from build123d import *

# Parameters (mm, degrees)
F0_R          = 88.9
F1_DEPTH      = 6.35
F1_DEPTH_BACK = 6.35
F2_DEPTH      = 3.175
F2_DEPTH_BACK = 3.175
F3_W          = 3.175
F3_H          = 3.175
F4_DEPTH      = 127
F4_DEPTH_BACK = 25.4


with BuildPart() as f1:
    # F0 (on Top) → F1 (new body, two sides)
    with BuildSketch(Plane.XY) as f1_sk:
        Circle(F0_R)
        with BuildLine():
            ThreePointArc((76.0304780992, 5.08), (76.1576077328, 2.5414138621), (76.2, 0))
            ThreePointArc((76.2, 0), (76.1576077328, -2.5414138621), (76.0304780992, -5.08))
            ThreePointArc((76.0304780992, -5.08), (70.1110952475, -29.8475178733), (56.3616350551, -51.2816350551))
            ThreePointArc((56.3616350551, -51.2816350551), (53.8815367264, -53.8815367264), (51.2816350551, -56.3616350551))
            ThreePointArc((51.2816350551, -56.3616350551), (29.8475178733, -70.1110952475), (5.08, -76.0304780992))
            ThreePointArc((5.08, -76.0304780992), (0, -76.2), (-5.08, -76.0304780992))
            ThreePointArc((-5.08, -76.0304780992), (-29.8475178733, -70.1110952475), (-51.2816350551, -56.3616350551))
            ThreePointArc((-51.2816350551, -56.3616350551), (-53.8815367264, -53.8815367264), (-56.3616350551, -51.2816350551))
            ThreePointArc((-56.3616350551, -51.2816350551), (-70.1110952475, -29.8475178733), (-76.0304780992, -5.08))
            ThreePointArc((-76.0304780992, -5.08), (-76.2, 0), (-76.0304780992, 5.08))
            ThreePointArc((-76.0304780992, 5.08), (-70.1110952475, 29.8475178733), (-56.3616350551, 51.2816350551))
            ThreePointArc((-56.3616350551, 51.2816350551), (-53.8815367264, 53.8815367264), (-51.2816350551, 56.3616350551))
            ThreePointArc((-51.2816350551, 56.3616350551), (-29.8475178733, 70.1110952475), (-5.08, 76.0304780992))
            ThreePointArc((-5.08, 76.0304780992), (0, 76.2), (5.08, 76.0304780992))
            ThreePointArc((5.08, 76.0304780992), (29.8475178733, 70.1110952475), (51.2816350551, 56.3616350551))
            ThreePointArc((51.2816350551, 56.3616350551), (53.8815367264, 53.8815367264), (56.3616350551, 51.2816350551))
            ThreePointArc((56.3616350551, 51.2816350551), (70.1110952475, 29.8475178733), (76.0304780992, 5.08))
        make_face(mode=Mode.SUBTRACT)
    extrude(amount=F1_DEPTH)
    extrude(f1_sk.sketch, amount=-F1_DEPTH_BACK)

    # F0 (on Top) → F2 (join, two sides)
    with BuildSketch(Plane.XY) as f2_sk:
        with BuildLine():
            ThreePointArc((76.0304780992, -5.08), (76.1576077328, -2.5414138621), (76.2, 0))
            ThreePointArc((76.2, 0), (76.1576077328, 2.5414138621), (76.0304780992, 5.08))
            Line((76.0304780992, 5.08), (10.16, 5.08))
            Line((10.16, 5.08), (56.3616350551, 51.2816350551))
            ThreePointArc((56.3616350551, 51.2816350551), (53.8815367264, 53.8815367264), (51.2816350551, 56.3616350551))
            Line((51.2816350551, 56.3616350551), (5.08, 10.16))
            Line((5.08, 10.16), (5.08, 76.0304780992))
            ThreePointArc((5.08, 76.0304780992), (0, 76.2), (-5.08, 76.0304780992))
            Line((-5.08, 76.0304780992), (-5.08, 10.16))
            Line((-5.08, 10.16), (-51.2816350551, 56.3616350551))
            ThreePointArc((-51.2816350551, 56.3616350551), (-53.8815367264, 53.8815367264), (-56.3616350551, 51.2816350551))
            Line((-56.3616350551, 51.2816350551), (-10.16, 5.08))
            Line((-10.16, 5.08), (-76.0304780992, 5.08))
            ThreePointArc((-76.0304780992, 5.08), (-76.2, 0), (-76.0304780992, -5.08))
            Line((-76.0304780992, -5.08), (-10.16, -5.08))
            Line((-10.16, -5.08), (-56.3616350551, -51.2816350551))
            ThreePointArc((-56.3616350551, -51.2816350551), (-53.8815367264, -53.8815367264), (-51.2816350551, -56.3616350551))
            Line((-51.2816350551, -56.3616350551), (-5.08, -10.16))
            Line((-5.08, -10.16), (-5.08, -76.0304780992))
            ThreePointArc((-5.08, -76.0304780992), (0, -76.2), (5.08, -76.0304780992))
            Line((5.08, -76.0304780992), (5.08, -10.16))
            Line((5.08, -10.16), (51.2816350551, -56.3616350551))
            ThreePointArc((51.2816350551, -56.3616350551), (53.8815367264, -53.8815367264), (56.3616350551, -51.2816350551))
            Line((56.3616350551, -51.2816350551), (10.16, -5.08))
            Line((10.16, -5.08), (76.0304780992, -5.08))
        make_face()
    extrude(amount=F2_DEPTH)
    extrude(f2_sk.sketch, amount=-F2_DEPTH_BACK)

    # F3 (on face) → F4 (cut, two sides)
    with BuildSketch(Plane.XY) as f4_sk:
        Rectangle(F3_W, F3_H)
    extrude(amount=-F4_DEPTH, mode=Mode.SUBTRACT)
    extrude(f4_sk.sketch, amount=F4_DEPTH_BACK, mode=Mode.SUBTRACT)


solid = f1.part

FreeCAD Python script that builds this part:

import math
import FreeCAD as App
import Part
import Sketcher

V = App.Vector
Q = App.Units.Quantity


def add_polygon(sketch, points):
    """Adds a closed chain of lines whose ends are joined by coincident constraints."""
    first, n = sketch.GeometryCount, len(points)
    for a, b in zip(points, points[1:] + points[:1]):
        sketch.addGeometry(Part.LineSegment(App.Vector(*a, 0), App.Vector(*b, 0)), False)
    for i in range(n):
        sketch.addConstraint(Sketcher.Constraint("Coincident", first + i, 2, first + (i + 1) % n, 1))

doc = App.newDocument("Part")
body = doc.addObject("PartDesign::Body", "Body")

sketch1 = body.newObject("Sketcher::SketchObject", "Sketch")
sketch1.AttachmentSupport = (doc.getObject("XY_Plane"), [""])
sketch1.MapMode = "FlatFace"
sketch1.addGeometry([
    Part.Circle(V(0, 0, 0), V(0, 0, 1), 89),
    Part.ArcOfCircle(Part.Circle(V(0, 0, 0), V(0, 0, 1), 76), math.radians(4), math.radians(42)),
    Part.ArcOfCircle(Part.Circle(V(0, 0, 0), V(0, 0, 1), 76), math.radians(0), math.radians(3.82)),
    Part.ArcOfCircle(Part.Circle(V(0, 0, 0), V(0, 0, 1), 76), math.radians(-3.82), math.radians(0)),
    Part.ArcOfCircle(Part.Circle(V(0, 0, 0), V(0, 0, 1), 76), math.radians(-42), math.radians(-4)),
    Part.ArcOfCircle(Part.Circle(V(0, 0, 0), V(0, 0, 1), 76), math.radians(-47.7), math.radians(-42.3)),
    Part.ArcOfCircle(Part.Circle(V(0, 0, 0), V(0, 0, 1), 76), math.radians(-86), math.radians(-48)),
    Part.ArcOfCircle(Part.Circle(V(0, 0, 0), V(0, 0, 1), 76), math.radians(-93.82), math.radians(-86.18)),
    Part.ArcOfCircle(Part.Circle(V(0, 0, 0), V(0, 0, 1), 76), math.radians(-132), math.radians(-94)),
    Part.ArcOfCircle(Part.Circle(V(0, 0, 0), V(0, 0, 1), 76), math.radians(-137.7), math.radians(-132.3)),
    Part.ArcOfCircle(Part.Circle(V(0, 0, 0), V(0, 0, 1), 76), math.radians(-176), math.radians(-138)),
    Part.ArcOfCircle(Part.Circle(V(0, 0, 0), V(0, 0, 1), 76), math.radians(176.18), math.radians(183.82)),
    Part.ArcOfCircle(Part.Circle(V(0, 0, 0), V(0, 0, 1), 76), math.radians(138), math.radians(176)),
    Part.ArcOfCircle(Part.Circle(V(0, 0, 0), V(0, 0, 1), 76), math.radians(132.3), math.radians(137.7)),
    Part.ArcOfCircle(Part.Circle(V(0, 0, 0), V(0, 0, 1), 76), math.radians(94), math.radians(132)),
    Part.ArcOfCircle(Part.Circle(V(0, 0, 0), V(0, 0, 1), 76), math.radians(86.18), math.radians(93.82)),
    Part.ArcOfCircle(Part.Circle(V(0, 0, 0), V(0, 0, 1), 76), math.radians(48), math.radians(86)),
    Part.ArcOfCircle(Part.Circle(V(0, 0, 0), V(0, 0, 1), 76), math.radians(42.3), math.radians(47.7)),
], False)
sketch1.addConstraint([
    Sketcher.Constraint("Tangent", 1, 1, 2, 2),
    Sketcher.Constraint("Tangent", 2, 1, 3, 2),
    Sketcher.Constraint("Tangent", 3, 1, 4, 2),
    Sketcher.Constraint("Tangent", 4, 1, 5, 2),
    Sketcher.Constraint("Tangent", 5, 1, 6, 2),
    Sketcher.Constraint("Tangent", 6, 1, 7, 2),
    Sketcher.Constraint("Tangent", 7, 1, 8, 2),
    Sketcher.Constraint("Tangent", 8, 1, 9, 2),
    Sketcher.Constraint("Tangent", 9, 1, 10, 2),
    Sketcher.Constraint("Tangent", 10, 1, 11, 2),
    Sketcher.Constraint("Tangent", 11, 1, 12, 2),
    Sketcher.Constraint("Tangent", 12, 1, 13, 2),
    Sketcher.Constraint("Tangent", 13, 1, 14, 2),
    Sketcher.Constraint("Tangent", 14, 1, 15, 2),
    Sketcher.Constraint("Tangent", 15, 1, 16, 2),
    Sketcher.Constraint("Tangent", 16, 1, 17, 2),
    Sketcher.Constraint("Tangent", 17, 1, 1, 2),
    Sketcher.Constraint("Coincident", 0, 3, -1, 1),
    Sketcher.Constraint("Coincident", 1, 3, -1, 1),
    Sketcher.Constraint("Coincident", 3, 3, -1, 1),
    Sketcher.Constraint("Coincident", 5, 3, -1, 1),
    Sketcher.Constraint("Coincident", 7, 3, -1, 1),
    Sketcher.Constraint("Coincident", 9, 3, -1, 1),
    Sketcher.Constraint("Coincident", 11, 3, -1, 1),
    Sketcher.Constraint("Coincident", 13, 3, -1, 1),
    Sketcher.Constraint("Coincident", 15, 3, -1, 1),
    Sketcher.Constraint("PointOnObject", 2, 1, -1),
    Sketcher.Constraint("Horizontal", 6, 1, 7, 1),
    Sketcher.Constraint("Horizontal", 5, 1, 8, 1),
    Sketcher.Constraint("Horizontal", 4, 1, 9, 1),
    Sketcher.Constraint("Horizontal", 3, 1, 10, 1),
    Sketcher.Constraint("Horizontal", 1, 1, 11, 1),
    Sketcher.Constraint("Horizontal", 14, 1, 15, 1),
    Sketcher.Constraint("Horizontal", 13, 1, 16, 1),
    Sketcher.Constraint("Horizontal", 12, 1, 17, 1),
    Sketcher.Constraint("Vertical", 1, 1, 3, 1),
    Sketcher.Constraint("Vertical", 9, 1, 12, 1),
    Sketcher.Constraint("Vertical", 8, 1, 13, 1),
    Sketcher.Constraint("Vertical", 7, 1, 14, 1),
    Sketcher.Constraint("Diameter", 0, Q("7 in")),
    Sketcher.Constraint("Radius", 1, Q("3 in")),
    Sketcher.Constraint("DistanceY", -1, 1, 1, 1, Q("0.2 in")),
    Sketcher.Constraint("DistanceX", -1, 1, 6, 1, Q("0.2 in")),
    Sketcher.Constraint("DistanceX", 5, 1, 4, 1, Q("0.2 in")),
    Sketcher.Constraint("DistanceY", 5, 1, 4, 1, Q("0.2 in")),
])
pad1 = body.newObject("PartDesign::Pad", "Pad")
pad1.Profile = sketch1
pad1.Type = "TwoLengths"
pad1.Length = Q("0.25 in")
pad1.Length2 = Q("0.25 in")

sketch2 = body.newObject("Sketcher::SketchObject", "Sketch001")
sketch2.AttachmentSupport = (doc.getObject("XY_Plane"), [""])
sketch2.MapMode = "FlatFace"
sketch2.addGeometry([
    Part.ArcOfCircle(Part.Circle(V(0, 0, 0), V(0, 0, 1), 76), math.radians(-3.82), math.radians(0)),
    Part.ArcOfCircle(Part.Circle(V(0, 0, 0), V(0, 0, 1), 76), math.radians(0), math.radians(3.82)),
    Part.LineSegment(V(76, 5, 0), V(10, 5, 0)),
    Part.LineSegment(V(10, 5, 0), V(56, 51, 0)),
    Part.ArcOfCircle(Part.Circle(V(0, 0, 0), V(0, 0, 1), 76), math.radians(42.3), math.radians(47.7)),
    Part.LineSegment(V(51, 56, 0), V(5, 10, 0)),
    Part.LineSegment(V(5, 10, 0), V(5, 76, 0)),
    Part.ArcOfCircle(Part.Circle(V(0, 0, 0), V(0, 0, 1), 76), math.radians(86.18), math.radians(93.82)),
    Part.LineSegment(V(-5, 76, 0), V(-5, 10, 0)),
    Part.LineSegment(V(-5, 10, 0), V(-51, 56, 0)),
    Part.ArcOfCircle(Part.Circle(V(0, 0, 0), V(0, 0, 1), 76), math.radians(132.3), math.radians(137.7)),
    Part.LineSegment(V(-56, 51, 0), V(-10, 5, 0)),
    Part.LineSegment(V(-10, 5, 0), V(-76, 5, 0)),
    Part.ArcOfCircle(Part.Circle(V(0, 0, 0), V(0, 0, 1), 76), math.radians(176.18), math.radians(183.82)),
    Part.LineSegment(V(-76, -5, 0), V(-10, -5, 0)),
    Part.LineSegment(V(-10, -5, 0), V(-56, -51, 0)),
    Part.ArcOfCircle(Part.Circle(V(0, 0, 0), V(0, 0, 1), 76), math.radians(-137.7), math.radians(-132.3)),
    Part.LineSegment(V(-51, -56, 0), V(-5, -10, 0)),
    Part.LineSegment(V(-5, -10, 0), V(-5, -76, 0)),
    Part.ArcOfCircle(Part.Circle(V(0, 0, 0), V(0, 0, 1), 76), math.radians(-93.82), math.radians(-86.18)),
    Part.LineSegment(V(5, -76, 0), V(5, -10, 0)),
    Part.LineSegment(V(5, -10, 0), V(51, -56, 0)),
    Part.ArcOfCircle(Part.Circle(V(0, 0, 0), V(0, 0, 1), 76), math.radians(-47.7), math.radians(-42.3)),
    Part.LineSegment(V(56, -51, 0), V(10, -5, 0)),
    Part.LineSegment(V(10, -5, 0), V(76, -5, 0)),
], False)
sketch2.addConstraint([
    Sketcher.Constraint("Tangent", 0, 2, 1, 1),
    Sketcher.Constraint("Coincident", 1, 2, 2, 1),
    Sketcher.Constraint("Coincident", 2, 2, 3, 1),
    Sketcher.Constraint("Coincident", 3, 2, 4, 1),
    Sketcher.Constraint("Coincident", 4, 2, 5, 1),
    Sketcher.Constraint("Coincident", 5, 2, 6, 1),
    Sketcher.Constraint("Coincident", 6, 2, 7, 1),
    Sketcher.Constraint("Coincident", 7, 2, 8, 1),
    Sketcher.Constraint("Coincident", 8, 2, 9, 1),
    Sketcher.Constraint("Coincident", 9, 2, 10, 1),
    Sketcher.Constraint("Coincident", 10, 2, 11, 1),
    Sketcher.Constraint("Coincident", 11, 2, 12, 1),
    Sketcher.Constraint("Coincident", 12, 2, 13, 1),
    Sketcher.Constraint("Coincident", 13, 2, 14, 1),
    Sketcher.Constraint("Coincident", 14, 2, 15, 1),
    Sketcher.Constraint("Coincident", 15, 2, 16, 1),
    Sketcher.Constraint("Coincident", 16, 2, 17, 1),
    Sketcher.Constraint("Coincident", 17, 2, 18, 1),
    Sketcher.Constraint("Coincident", 18, 2, 19, 1),
    Sketcher.Constraint("Coincident", 19, 2, 20, 1),
    Sketcher.Constraint("Coincident", 20, 2, 21, 1),
    Sketcher.Constraint("Coincident", 21, 2, 22, 1),
    Sketcher.Constraint("Coincident", 22, 2, 23, 1),
    Sketcher.Constraint("Coincident", 23, 2, 24, 1),
    Sketcher.Constraint("Coincident", 24, 2, 0, 1),
    Sketcher.Constraint("Horizontal", 2),
    Sketcher.Constraint("Vertical", 6),
    Sketcher.Constraint("Vertical", 8),
    Sketcher.Constraint("Horizontal", 12),
    Sketcher.Constraint("Horizontal", 14),
    Sketcher.Constraint("Vertical", 18),
    Sketcher.Constraint("Vertical", 20),
    Sketcher.Constraint("Horizontal", 24),
    Sketcher.Constraint("Coincident", 0, 3, -1, 1),
    Sketcher.Constraint("Coincident", 4, 3, -1, 1),
    Sketcher.Constraint("Coincident", 7, 3, -1, 1),
    Sketcher.Constraint("Coincident", 10, 3, -1, 1),
    Sketcher.Constraint("Coincident", 13, 3, -1, 1),
    Sketcher.Constraint("Coincident", 16, 3, -1, 1),
    Sketcher.Constraint("Coincident", 19, 3, -1, 1),
    Sketcher.Constraint("Coincident", 22, 3, -1, 1),
    Sketcher.Constraint("Equal", 0, 1),
    Sketcher.Constraint("Equal", 1, 4),
    Sketcher.Constraint("Equal", 4, 7),
    Sketcher.Constraint("Equal", 7, 10),
    Sketcher.Constraint("Equal", 10, 13),
    Sketcher.Constraint("Equal", 13, 16),
    Sketcher.Constraint("Equal", 16, 19),
    Sketcher.Constraint("Equal", 19, 22),
    Sketcher.Constraint("Symmetric", 2, 2, 14, 2, -1, 1),
    Sketcher.Constraint("Symmetric", 5, 2, 17, 2, -1, 1),
    Sketcher.Constraint("Symmetric", 8, 2, 20, 2, -1, 1),
    Sketcher.Constraint("Symmetric", 11, 2, 23, 2, -1, 1),
    Sketcher.Constraint("Symmetric", 5, 2, 8, 2, -2),
    Sketcher.Constraint("Symmetric", 2, 2, 11, 2, -2),
    Sketcher.Constraint("PointOnObject", 0, 2, -1),
    Sketcher.Constraint("Parallel", 3, 5),
    Sketcher.Constraint("Perpendicular", 5, 9),
    Sketcher.Constraint("Parallel", 9, 11),
    Sketcher.Constraint("Perpendicular", 11, 15),
    Sketcher.Constraint("Parallel", 15, 17),
    Sketcher.Constraint("Perpendicular", 17, 21),
    Sketcher.Constraint("Parallel", 21, 23),
    Sketcher.Constraint("Horizontal", 4, 2, 9, 2),
    Sketcher.Constraint("Equal", 24, 6),
    Sketcher.Constraint("Equal", 3, 5),
    Sketcher.Constraint("Radius", 0, Q("3 in")),
    Sketcher.Constraint("DistanceY", -1, 1, 1, 2, Q("0.2 in")),
    Sketcher.Constraint("DistanceX", -1, 1, 2, 2, Q("0.4 in")),
])
pad2 = body.newObject("PartDesign::Pad", "Pad001")
pad2.Profile = sketch2
pad2.Type = "TwoLengths"
pad2.Length = Q("0.125 in")
pad2.Length2 = Q("0.125 in")

sketch3 = body.newObject("Sketcher::SketchObject", "Sketch002")
sketch3.AttachmentSupport = (doc.getObject("XY_Plane"), [""])
sketch3.MapMode = "FlatFace"
add_polygon(sketch3, [(-1.6, 1.6), (-1.6, -1.6), (1.6, -1.6), (1.6, 1.6)])
sketch3.addConstraint([
    Sketcher.Constraint("Vertical", 0),
    Sketcher.Constraint("Horizontal", 1),
    Sketcher.Constraint("Vertical", 2),
    Sketcher.Constraint("Horizontal", 3),
    Sketcher.Constraint("Symmetric", 0, 2, 2, 2, -1, 1),
    Sketcher.Constraint("Equal", 3, 0),
    Sketcher.Constraint("DistanceX", 1, 1, 1, 2, Q("0.125 in")),
])
pocket1 = body.newObject("PartDesign::Pocket", "Pocket")
pocket1.Profile = sketch3
pocket1.Type = "ThroughAll"
pocket1.Midplane = True

doc.recompute()
